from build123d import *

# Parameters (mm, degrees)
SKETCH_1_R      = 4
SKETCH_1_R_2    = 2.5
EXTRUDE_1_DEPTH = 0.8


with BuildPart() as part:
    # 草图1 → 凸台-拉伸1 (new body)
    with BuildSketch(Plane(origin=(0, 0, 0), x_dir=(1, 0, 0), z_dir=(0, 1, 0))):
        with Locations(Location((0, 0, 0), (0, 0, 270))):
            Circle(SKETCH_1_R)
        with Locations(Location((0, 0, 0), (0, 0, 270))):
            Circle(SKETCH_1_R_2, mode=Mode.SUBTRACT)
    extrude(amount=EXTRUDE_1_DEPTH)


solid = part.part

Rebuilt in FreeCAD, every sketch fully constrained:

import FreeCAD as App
import Part
import Sketcher

V = App.Vector
Q = App.Units.Quantity

doc = App.newDocument("Part")
body = doc.addObject("PartDesign::Body", "Body")

# Sketch on XZ plane
sketch1 = body.newObject("Sketcher::SketchObject", "Sketch")
sketch1.AttachmentSupport = (doc.getObject("XZ_Plane"), [""])
sketch1.MapMode = "FlatFace"
sketch1.addGeometry(Part.Circle(V(0, 0, 0), V(0, 0, 1), 4), False)
sketch1.addGeometry(Part.Circle(V(0, 0, 0), V(0, 0, 1), 2.5), False)
sketch1.addConstraint(Sketcher.Constraint("Coincident", 0, 3, -1, 1))
sketch1.addConstraint(Sketcher.Constraint("Coincident", 1, 3, -1, 1))
sketch1.addConstraint(Sketcher.Constraint("Diameter", 0, Q("8 mm")))
sketch1.addConstraint(Sketcher.Constraint("Diameter", 1, Q("5 mm")))
pad1 = body.newObject("PartDesign::Pad", "Pad")
pad1.Profile = sketch1
pad1.Length = 0.8
pad1.Reversed = True

doc.recompute()
